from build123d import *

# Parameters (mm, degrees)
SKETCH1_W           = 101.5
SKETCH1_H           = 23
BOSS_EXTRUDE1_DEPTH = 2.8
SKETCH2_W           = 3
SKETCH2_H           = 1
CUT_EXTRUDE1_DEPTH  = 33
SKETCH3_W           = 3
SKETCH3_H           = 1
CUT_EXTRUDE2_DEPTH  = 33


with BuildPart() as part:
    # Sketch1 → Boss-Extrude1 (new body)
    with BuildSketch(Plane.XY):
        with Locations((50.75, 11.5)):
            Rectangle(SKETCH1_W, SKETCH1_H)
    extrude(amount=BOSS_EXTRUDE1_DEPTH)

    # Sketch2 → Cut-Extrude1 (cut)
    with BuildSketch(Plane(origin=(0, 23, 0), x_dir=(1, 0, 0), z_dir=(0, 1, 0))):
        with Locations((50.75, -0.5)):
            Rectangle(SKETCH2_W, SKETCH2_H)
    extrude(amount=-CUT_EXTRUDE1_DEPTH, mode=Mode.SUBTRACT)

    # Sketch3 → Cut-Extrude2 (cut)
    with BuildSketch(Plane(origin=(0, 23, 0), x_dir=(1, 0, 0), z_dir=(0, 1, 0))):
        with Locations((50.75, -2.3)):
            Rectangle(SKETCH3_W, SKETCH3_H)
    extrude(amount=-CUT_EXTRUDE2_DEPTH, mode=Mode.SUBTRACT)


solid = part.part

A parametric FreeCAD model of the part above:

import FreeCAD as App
import Part
import Sketcher
from FreeCAD import Vector


def add_polygon(sketch, points):
    """Adds a closed chain of lines whose ends are joined by coincident constraints."""
    first, n = sketch.GeometryCount, len(points)
    for a, b in zip(points, points[1:] + points[:1]):
        sketch.addGeometry(Part.LineSegment(App.Vector(*a, 0), App.Vector(*b, 0)), False)
    for i in range(n):
        sketch.addConstraint(Sketcher.Constraint("Coincident", first + i, 2, first + (i + 1) % n, 1))

doc = App.newDocument("Part")
body = doc.addObject("PartDesign::Body", "Body")

# Sketch on XY plane
sketch1 = body.newObject("Sketcher::SketchObject", "Sketch")
sketch1.AttachmentSupport = (doc.getObject("XY_Plane"), [""])
sketch1.MapMode = "FlatFace"
add_polygon(sketch1, [(0, 23), (0, 0), (101.5, 0), (101.5, 23)])  # lines 0-3
sketch1.addConstraint([
    Sketcher.Constraint("Vertical", 0),
    Sketcher.Constraint("Horizontal", 1),
    Sketcher.Constraint("Vertical", 2),
    Sketcher.Constraint("Horizontal", 3),
    Sketcher.Constraint("Coincident", 0, 2, -1, 1),
    Sketcher.Constraint("DistanceY", 0, 2, 0, 1, 23.0),
    Sketcher.Constraint("DistanceX", 1, 1, 1, 2, 101.5),
])
pad1 = body.newObject("PartDesign::Pad", "Pad")
pad1.Profile = sketch1
pad1.Length = 2.8

# Sketch on XZ plane
sketch2 = body.newObject("Sketcher::SketchObject", "Sketch001")
sketch2.AttachmentSupport = (doc.getObject("XZ_Plane"), [""])
sketch2.MapMode = "FlatFace"
sketch2.AttachmentOffset = App.Placement(Vector(0, 0, -23), App.Rotation())
add_polygon(sketch2, [(49.25, 0), (49.25, 1), (52.25, 1), (52.25, 0)])  # lines 0-3
sketch2.addConstraint([
    Sketcher.Constraint("Vertical", 0),
    Sketcher.Constraint("Horizontal", 1),
    Sketcher.Constraint("Vertical", 2),
    Sketcher.Constraint("Horizontal", 3),
    Sketcher.Constraint("PointOnObject", 2, 2, -1),
    Sketcher.Constraint("DistanceX", 1, 1, 1, 2, 3.0),
    Sketcher.Constraint("DistanceY", 0, 1, 0, 2, 1.0),
    Sketcher.Constraint("DistanceX", -1, 1, 0, 2, 49.25),
])
pocket1 = body.newObject("PartDesign::Pocket", "Pocket")
pocket1.Profile = sketch2
pocket1.Length = 33
pocket1.Reversed = True

# Sketch on XZ plane
sketch3 = body.newObject("Sketcher::SketchObject", "Sketch002")
sketch3.AttachmentSupport = (doc.getObject("XZ_Plane"), [""])
sketch3.MapMode = "FlatFace"
sketch3.AttachmentOffset = App.Placement(Vector(0, 0, -23), App.Rotation())
add_polygon(sketch3, [(49.25, 1.8), (49.25, 2.8), (52.25, 2.8), (52.25, 1.8)])  # lines 0-3
sketch3.addConstraint([
    Sketcher.Constraint("Vertical", 0),
    Sketcher.Constraint("Horizontal", 1),
    Sketcher.Constraint("Vertical", 2),
    Sketcher.Constraint("Horizontal", 3),
    Sketcher.Constraint("DistanceX", 1, 1, 1, 2, 3.0),
    Sketcher.Constraint("DistanceY", 0, 1, 0, 2, 1.0),
    Sketcher.Constraint("DistanceY", -1, 1, 0, 2, 2.8),
    Sketcher.Constraint("DistanceX", -1, 1, 0, 2, 49.25),
])
pocket2 = body.newObject("PartDesign::Pocket", "Pocket001")
pocket2.Profile = sketch3
pocket2.Length = 33
pocket2.Reversed = True

doc.recompute()
